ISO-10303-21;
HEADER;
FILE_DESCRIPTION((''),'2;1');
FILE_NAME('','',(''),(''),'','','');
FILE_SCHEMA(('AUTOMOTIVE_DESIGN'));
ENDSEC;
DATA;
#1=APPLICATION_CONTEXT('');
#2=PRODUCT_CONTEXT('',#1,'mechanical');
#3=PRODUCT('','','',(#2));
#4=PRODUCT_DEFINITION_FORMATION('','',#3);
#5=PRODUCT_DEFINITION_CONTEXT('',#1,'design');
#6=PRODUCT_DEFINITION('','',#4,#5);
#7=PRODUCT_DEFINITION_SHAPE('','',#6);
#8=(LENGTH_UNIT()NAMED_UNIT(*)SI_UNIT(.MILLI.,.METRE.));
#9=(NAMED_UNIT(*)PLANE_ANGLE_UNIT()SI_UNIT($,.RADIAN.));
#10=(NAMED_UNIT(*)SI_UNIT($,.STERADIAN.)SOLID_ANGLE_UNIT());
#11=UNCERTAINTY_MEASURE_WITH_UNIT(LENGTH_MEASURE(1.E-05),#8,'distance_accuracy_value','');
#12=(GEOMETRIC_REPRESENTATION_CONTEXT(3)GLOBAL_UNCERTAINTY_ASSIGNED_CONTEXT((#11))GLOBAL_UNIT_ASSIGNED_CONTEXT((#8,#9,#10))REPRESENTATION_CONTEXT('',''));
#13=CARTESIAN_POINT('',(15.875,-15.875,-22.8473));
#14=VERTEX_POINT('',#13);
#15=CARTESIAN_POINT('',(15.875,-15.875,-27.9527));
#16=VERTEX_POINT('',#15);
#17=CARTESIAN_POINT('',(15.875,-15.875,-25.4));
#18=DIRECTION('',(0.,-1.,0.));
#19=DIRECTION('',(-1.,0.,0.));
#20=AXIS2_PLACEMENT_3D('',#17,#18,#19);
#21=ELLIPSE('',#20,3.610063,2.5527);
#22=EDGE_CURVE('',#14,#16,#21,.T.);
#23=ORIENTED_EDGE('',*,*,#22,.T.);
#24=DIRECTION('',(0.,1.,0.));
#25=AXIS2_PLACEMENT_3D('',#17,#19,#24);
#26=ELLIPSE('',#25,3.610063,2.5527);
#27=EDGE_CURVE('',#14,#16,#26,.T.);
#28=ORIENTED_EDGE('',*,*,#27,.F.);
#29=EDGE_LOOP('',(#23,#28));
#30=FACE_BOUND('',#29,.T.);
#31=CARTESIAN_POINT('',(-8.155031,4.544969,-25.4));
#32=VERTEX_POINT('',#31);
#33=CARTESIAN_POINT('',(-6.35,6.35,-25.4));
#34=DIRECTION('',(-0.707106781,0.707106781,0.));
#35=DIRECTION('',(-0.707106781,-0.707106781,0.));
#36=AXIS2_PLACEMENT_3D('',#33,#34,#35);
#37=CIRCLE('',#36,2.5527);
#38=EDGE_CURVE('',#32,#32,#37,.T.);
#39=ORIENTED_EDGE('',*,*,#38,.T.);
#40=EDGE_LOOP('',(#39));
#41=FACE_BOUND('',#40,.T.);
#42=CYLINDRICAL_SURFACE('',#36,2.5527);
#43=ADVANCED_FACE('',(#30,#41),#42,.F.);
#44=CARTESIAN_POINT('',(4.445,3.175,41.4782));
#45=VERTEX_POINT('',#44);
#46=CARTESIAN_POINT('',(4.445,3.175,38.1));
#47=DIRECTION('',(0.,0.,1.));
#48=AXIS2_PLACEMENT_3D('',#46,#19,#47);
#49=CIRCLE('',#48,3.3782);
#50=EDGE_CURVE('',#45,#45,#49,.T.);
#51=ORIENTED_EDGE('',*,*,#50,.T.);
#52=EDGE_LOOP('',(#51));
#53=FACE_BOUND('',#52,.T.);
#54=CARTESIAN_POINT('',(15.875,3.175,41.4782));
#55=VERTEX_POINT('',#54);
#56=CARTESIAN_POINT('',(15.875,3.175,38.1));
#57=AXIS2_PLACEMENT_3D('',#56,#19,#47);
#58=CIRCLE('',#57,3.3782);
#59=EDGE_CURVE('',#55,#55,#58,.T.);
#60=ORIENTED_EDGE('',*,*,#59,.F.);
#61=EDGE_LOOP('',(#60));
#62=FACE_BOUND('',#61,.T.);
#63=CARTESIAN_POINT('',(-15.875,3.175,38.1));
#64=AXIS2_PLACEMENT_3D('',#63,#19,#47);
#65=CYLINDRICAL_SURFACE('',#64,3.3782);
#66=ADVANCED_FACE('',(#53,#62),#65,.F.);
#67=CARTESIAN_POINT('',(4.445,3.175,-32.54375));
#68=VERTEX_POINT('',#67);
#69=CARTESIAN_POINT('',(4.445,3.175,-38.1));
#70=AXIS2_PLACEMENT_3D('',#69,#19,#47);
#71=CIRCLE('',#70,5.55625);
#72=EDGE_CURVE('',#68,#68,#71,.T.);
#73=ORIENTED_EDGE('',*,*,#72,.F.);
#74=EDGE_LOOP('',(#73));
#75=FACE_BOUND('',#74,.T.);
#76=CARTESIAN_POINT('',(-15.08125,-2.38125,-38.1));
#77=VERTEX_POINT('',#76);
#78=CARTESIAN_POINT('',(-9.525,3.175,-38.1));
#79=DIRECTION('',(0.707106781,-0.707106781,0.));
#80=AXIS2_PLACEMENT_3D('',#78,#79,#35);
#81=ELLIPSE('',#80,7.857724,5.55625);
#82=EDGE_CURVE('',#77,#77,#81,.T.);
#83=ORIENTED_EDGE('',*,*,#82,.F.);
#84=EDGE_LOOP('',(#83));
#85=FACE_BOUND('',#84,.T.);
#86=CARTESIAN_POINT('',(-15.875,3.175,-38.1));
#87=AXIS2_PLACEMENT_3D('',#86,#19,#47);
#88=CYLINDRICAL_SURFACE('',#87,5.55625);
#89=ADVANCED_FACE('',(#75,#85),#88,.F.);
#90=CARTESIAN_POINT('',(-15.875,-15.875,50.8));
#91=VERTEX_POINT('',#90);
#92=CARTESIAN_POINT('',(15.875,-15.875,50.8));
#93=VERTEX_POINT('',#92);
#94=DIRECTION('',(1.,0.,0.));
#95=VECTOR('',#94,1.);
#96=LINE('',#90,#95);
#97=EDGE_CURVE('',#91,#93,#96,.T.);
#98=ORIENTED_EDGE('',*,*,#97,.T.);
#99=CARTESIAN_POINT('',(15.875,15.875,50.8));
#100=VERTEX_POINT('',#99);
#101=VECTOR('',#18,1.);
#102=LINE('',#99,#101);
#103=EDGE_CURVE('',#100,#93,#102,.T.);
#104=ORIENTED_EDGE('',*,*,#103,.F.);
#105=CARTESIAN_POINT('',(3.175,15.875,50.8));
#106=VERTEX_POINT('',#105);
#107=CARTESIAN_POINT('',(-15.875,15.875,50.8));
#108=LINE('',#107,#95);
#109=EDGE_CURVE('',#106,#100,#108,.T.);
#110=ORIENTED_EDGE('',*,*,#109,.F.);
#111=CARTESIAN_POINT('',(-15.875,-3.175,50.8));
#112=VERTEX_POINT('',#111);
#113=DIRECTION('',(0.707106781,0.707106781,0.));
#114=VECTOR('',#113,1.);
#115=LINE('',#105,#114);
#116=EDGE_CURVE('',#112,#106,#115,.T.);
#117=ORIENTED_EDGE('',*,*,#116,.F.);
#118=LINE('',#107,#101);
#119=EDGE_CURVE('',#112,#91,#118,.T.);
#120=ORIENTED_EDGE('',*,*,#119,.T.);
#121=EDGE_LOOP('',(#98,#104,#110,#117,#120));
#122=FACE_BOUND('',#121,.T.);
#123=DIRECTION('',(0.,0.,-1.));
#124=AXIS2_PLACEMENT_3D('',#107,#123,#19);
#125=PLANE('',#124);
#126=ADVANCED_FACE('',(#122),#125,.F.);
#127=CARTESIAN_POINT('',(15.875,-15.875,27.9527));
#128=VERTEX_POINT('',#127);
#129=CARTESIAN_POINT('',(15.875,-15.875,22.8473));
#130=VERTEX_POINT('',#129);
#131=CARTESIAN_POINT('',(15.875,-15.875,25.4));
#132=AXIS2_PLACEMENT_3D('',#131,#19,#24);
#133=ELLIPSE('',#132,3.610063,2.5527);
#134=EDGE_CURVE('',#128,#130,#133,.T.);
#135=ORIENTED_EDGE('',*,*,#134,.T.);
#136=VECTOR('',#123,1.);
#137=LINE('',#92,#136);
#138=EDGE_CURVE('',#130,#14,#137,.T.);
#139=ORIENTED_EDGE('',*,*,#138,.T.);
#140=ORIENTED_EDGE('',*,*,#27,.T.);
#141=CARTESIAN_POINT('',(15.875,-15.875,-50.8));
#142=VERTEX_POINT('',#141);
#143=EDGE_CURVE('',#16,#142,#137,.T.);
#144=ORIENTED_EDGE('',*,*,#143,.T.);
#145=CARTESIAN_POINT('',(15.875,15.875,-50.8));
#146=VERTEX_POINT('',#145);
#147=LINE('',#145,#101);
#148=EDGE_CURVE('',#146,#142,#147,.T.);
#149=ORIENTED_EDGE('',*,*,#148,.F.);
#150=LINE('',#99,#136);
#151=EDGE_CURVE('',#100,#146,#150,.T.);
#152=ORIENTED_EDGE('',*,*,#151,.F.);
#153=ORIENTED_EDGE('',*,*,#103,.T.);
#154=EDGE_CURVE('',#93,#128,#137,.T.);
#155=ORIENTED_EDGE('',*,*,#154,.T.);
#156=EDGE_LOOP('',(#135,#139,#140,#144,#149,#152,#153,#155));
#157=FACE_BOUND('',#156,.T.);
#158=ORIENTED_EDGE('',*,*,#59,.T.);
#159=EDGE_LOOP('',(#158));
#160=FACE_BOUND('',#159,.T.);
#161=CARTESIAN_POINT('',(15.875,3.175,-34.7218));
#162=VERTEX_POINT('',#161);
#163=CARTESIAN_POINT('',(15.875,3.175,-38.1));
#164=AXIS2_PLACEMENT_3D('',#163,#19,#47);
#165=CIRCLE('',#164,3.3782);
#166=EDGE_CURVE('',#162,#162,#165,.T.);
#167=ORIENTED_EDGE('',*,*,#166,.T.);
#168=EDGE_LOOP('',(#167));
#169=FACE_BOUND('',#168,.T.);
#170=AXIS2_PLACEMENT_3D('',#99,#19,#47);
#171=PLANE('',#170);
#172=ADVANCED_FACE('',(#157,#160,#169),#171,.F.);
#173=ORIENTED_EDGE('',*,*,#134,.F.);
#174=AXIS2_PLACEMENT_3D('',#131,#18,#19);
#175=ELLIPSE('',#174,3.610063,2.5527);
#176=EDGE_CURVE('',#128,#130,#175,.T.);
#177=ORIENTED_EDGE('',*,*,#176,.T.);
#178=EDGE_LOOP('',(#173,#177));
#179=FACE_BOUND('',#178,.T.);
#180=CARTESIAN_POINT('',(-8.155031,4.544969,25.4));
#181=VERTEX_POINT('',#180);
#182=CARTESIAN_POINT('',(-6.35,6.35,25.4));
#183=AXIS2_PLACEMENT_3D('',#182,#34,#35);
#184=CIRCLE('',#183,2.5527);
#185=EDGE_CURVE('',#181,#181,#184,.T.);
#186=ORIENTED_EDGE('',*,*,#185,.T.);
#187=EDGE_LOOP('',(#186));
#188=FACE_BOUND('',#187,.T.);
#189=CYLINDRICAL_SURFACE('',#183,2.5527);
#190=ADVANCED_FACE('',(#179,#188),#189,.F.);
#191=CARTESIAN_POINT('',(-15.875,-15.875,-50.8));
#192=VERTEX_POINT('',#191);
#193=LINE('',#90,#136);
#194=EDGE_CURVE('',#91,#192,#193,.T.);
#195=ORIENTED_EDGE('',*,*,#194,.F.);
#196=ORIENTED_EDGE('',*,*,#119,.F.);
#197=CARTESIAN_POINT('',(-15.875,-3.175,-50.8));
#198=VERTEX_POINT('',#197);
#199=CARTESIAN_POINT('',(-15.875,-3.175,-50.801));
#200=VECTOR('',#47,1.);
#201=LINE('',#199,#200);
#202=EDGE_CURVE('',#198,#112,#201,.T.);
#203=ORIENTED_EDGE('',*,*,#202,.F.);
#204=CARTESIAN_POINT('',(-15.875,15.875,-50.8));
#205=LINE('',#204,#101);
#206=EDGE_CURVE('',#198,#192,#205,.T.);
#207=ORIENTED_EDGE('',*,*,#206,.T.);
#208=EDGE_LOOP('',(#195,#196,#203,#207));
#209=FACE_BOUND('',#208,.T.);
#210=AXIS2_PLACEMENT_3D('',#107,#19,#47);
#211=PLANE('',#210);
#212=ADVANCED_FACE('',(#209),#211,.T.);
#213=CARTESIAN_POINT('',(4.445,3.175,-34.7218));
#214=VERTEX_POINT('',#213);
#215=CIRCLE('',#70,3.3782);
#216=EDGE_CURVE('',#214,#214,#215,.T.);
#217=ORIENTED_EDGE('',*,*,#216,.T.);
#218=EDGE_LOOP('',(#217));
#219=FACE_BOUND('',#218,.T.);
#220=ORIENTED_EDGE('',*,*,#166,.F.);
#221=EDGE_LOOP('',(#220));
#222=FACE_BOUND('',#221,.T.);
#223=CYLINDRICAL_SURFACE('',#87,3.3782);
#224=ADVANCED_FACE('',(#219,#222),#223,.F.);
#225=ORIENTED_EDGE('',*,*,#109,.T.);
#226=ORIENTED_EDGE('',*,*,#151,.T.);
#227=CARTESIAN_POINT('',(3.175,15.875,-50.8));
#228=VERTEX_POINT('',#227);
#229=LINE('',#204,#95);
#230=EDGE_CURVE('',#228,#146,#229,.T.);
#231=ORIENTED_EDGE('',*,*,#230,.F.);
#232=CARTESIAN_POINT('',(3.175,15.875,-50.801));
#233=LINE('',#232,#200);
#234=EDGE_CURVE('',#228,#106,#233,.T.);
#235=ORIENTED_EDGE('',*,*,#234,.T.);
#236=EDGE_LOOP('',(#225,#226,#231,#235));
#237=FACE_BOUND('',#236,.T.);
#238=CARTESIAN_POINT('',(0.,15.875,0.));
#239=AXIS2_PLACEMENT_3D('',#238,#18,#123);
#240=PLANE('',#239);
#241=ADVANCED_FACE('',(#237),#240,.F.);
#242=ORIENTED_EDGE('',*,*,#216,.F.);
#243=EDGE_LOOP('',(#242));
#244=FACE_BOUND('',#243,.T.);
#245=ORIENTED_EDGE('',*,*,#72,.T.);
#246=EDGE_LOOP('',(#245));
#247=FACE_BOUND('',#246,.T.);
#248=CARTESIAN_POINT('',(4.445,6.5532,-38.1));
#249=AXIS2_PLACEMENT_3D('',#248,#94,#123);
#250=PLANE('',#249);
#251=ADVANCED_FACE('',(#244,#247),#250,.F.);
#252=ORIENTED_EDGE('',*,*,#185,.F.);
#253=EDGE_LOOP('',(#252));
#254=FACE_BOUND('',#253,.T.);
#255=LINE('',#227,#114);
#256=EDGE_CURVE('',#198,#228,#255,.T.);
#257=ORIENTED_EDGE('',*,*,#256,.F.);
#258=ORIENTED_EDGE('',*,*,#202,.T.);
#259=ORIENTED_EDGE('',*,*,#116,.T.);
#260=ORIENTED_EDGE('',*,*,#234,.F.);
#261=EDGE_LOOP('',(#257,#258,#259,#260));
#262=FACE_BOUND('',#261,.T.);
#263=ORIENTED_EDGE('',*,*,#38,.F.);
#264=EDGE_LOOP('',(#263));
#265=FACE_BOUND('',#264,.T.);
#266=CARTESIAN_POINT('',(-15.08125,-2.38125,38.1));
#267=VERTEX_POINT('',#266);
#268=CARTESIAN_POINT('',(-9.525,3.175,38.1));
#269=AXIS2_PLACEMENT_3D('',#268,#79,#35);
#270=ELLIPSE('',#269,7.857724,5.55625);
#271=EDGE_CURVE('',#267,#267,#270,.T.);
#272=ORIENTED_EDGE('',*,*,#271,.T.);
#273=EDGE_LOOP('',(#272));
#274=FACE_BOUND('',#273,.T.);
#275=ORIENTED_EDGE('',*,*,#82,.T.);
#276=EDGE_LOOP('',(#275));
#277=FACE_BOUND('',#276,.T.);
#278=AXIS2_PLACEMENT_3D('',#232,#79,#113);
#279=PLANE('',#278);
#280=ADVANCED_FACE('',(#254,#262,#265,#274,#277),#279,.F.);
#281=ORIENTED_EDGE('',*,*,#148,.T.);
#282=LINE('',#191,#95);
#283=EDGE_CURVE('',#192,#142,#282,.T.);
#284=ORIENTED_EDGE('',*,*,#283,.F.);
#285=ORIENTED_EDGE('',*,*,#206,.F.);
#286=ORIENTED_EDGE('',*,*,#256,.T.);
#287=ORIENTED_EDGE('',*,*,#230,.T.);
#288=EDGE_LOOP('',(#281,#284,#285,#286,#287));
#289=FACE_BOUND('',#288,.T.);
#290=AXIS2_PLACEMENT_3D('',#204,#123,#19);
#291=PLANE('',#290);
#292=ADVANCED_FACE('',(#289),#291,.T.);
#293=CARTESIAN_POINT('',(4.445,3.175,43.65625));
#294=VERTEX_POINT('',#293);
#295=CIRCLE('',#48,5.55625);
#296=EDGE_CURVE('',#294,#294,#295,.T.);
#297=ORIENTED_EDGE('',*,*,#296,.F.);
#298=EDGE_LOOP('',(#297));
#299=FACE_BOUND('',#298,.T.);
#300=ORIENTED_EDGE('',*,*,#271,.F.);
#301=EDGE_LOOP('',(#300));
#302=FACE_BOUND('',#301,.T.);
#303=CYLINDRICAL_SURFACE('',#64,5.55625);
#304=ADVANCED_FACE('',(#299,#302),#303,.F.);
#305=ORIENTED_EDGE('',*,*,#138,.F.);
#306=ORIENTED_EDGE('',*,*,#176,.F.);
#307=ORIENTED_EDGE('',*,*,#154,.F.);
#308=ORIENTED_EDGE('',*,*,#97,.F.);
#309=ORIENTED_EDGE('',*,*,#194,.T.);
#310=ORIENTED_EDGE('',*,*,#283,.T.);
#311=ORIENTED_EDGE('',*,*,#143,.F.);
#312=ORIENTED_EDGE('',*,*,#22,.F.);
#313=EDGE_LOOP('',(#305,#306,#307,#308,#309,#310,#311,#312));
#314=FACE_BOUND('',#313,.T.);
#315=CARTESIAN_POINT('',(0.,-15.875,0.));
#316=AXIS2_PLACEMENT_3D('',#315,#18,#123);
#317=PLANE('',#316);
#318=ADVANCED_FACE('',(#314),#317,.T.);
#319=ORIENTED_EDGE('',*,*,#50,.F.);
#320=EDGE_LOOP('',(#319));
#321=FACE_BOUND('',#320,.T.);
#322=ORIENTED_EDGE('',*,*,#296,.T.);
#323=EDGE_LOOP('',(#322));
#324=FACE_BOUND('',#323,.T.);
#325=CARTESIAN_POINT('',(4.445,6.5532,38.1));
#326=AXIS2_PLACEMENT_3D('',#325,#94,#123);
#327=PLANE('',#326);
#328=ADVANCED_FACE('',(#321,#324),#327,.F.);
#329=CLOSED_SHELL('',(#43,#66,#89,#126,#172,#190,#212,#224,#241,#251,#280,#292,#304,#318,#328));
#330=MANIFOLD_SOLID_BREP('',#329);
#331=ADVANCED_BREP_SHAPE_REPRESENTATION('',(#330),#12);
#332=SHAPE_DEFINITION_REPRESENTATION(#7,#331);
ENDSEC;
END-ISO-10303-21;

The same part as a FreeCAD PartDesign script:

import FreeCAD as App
import Part
import Sketcher
Q = App.Units.Quantity

doc = App.newDocument("Part")
body = doc.addObject("PartDesign::Body", "Body")

sketch1 = body.newObject("Sketcher::SketchObject", "Sketch")
sketch1.AttachmentSupport = (doc.getObject("XZ_Plane"), [""])
sketch1.MapMode = "FlatFace"
sketch1.addGeometry(Part.LineSegment(App.Vector(-16, -51, 0), App.Vector(-16, 51, 0)), False)
sketch1.addGeometry(Part.LineSegment(App.Vector(-16, 51, 0), App.Vector(16, 51, 0)), False)
sketch1.addGeometry(Part.LineSegment(App.Vector(16, 51, 0), App.Vector(16, -51, 0)), False)
sketch1.addGeometry(Part.LineSegment(App.Vector(16, -51, 0), App.Vector(-16, -51, 0)), False)
sketch1.addConstraint(Sketcher.Constraint("Coincident", 0, 2, 1, 1))
sketch1.addConstraint(Sketcher.Constraint("Coincident", 1, 2, 2, 1))
sketch1.addConstraint(Sketcher.Constraint("Coincident", 2, 2, 3, 1))
sketch1.addConstraint(Sketcher.Constraint("Coincident", 3, 2, 0, 1))
sketch1.addConstraint(Sketcher.Constraint("Vertical", 0))
sketch1.addConstraint(Sketcher.Constraint("Horizontal", 1))
sketch1.addConstraint(Sketcher.Constraint("Vertical", 2))
sketch1.addConstraint(Sketcher.Constraint("Horizontal", 3))
sketch1.addConstraint(Sketcher.Constraint("Symmetric", 0, 2, 2, 2, -1, 1))
sketch1.addConstraint(Sketcher.Constraint("DistanceY", 0, 1, 0, 2, Q("4 in")))
sketch1.addConstraint(Sketcher.Constraint("DistanceX", 1, 1, 1, 2, Q("1.25 in")))
pad1 = body.newObject("PartDesign::Pad", "Pad")
pad1.Profile = sketch1
pad1.Length = Q("1.25 in")
pad1.Midplane = True

sketch2 = body.newObject("Sketcher::SketchObject", "Sketch001")
sketch2.AttachmentSupport = (doc.getObject("XY_Plane"), [""])
sketch2.MapMode = "FlatFace"
sketch2.AttachmentOffset = App.Placement(App.Vector(0, 0, 2 * 25.4), App.Rotation())
sketch2.addGeometry(Part.LineSegment(App.Vector(-16, 16, 0), App.Vector(-16, -3, 0)), False)
sketch2.addGeometry(Part.LineSegment(App.Vector(-16, -3, 0), App.Vector(3, 16, 0)), False)
sketch2.addGeometry(Part.LineSegment(App.Vector(3, 16, 0), App.Vector(-16, 16, 0)), False)
sketch2.addConstraint(Sketcher.Constraint("Coincident", 0, 2, 1, 1))
sketch2.addConstraint(Sketcher.Constraint("Coincident", 1, 2, 2, 1))
sketch2.addConstraint(Sketcher.Constraint("Coincident", 2, 2, 0, 1))
sketch2.addConstraint(Sketcher.Constraint("Vertical", 0))
sketch2.addConstraint(Sketcher.Constraint("Horizontal", 2))
sketch2.addConstraint(Sketcher.Constraint("Equal", 2, 0))
sketch2.addConstraint(Sketcher.Constraint("DistanceX", 2, 2, 2, 1, Q("0.75 in")))
sketch2.addConstraint(Sketcher.Constraint("DistanceX", 0, 2, -1, 1, Q("0.625 in")))
sketch2.addConstraint(Sketcher.Constraint("DistanceY", 0, 2, -1, 1, Q("0.125 in")))
pocket1 = body.newObject("PartDesign::Pocket", "Pocket")
pocket1.Profile = sketch2
pocket1.Type = "UpToFirst"

sketch3 = body.newObject("Sketcher::SketchObject", "Sketch002")
sketch3.Placement = App.Placement(App.Vector(-6.35, 6.35, 0), App.Rotation(App.Vector(0, 0, 1), App.Vector(0.707106781, 0.707106781, 0), App.Vector(-0.707106781, 0.707106781, 0), "ZXY"))
sketch3.addGeometry(Part.Circle(App.Vector(-25.4, 0, 0), App.Vector(0, 0, 1), 2.6), False)
sketch3.addGeometry(Part.Circle(App.Vector(25.4, 0, 0), App.Vector(0, 0, 1), 2.6), False)
sketch3.addConstraint(Sketcher.Constraint("Equal", 0, 1))
sketch3.addConstraint(Sketcher.Constraint("Symmetric", 0, 3, 1, 3, -1, 1))
sketch3.addConstraint(Sketcher.Constraint("PointOnObject", 0, 3, -1))
sketch3.addConstraint(Sketcher.Constraint("Diameter", 0, Q("0.201 in")))
sketch3.addConstraint(Sketcher.Constraint("DistanceX", 0, 3, -1, 1, Q("1 in")))
doc.recompute()
hole = body.newObject("PartDesign::Hole", "Hole")
hole.Profile = sketch3
hole.ThreadType = "None"
hole.Diameter = Q("0.201 in")
hole.DepthType = "ThroughAll"

sketch4 = body.newObject("Sketcher::SketchObject", "Sketch003")
sketch4.AttachmentSupport = (doc.getObject("YZ_Plane"), [""])
sketch4.MapMode = "FlatFace"
sketch4.AttachmentOffset = App.Placement(App.Vector(0, 0, -0.625 * 25.4), App.Rotation())
sketch4.addGeometry(Part.Circle(App.Vector(3.2, -38.1, 0), App.Vector(0, 0, 1), 3.4), False)
sketch4.addGeometry(Part.Circle(App.Vector(3.2, 38.1, 0), App.Vector(0, 0, 1), 3.4), False)
sketch4.addConstraint(Sketcher.Constraint("Equal", 0, 1))
sketch4.addConstraint(Sketcher.Constraint("Symmetric", 0, 3, 1, 3, -1))
sketch4.addConstraint(Sketcher.Constraint("Diameter", 0, Q("0.266 in")))
sketch4.addConstraint(Sketcher.Constraint("DistanceY", 0, 3, 1, 3, Q("3 in")))
sketch4.addConstraint(Sketcher.Constraint("DistanceX", -1, 1, 0, 3, Q("0.125 in")))
doc.recompute()
hole2 = body.newObject("PartDesign::Hole", "Hole001")
hole2.Profile = sketch4
hole2.ThreadType = "None"
hole2.Diameter = Q("0.266 in")
hole2.DepthType = "ThroughAll"
hole2.HoleCutType = "Counterbore"
hole2.HoleCutDiameter = Q("0.4375 in")
hole2.HoleCutDepth = Q("0.8 in")
hole2.Reversed = True

doc.recompute()
